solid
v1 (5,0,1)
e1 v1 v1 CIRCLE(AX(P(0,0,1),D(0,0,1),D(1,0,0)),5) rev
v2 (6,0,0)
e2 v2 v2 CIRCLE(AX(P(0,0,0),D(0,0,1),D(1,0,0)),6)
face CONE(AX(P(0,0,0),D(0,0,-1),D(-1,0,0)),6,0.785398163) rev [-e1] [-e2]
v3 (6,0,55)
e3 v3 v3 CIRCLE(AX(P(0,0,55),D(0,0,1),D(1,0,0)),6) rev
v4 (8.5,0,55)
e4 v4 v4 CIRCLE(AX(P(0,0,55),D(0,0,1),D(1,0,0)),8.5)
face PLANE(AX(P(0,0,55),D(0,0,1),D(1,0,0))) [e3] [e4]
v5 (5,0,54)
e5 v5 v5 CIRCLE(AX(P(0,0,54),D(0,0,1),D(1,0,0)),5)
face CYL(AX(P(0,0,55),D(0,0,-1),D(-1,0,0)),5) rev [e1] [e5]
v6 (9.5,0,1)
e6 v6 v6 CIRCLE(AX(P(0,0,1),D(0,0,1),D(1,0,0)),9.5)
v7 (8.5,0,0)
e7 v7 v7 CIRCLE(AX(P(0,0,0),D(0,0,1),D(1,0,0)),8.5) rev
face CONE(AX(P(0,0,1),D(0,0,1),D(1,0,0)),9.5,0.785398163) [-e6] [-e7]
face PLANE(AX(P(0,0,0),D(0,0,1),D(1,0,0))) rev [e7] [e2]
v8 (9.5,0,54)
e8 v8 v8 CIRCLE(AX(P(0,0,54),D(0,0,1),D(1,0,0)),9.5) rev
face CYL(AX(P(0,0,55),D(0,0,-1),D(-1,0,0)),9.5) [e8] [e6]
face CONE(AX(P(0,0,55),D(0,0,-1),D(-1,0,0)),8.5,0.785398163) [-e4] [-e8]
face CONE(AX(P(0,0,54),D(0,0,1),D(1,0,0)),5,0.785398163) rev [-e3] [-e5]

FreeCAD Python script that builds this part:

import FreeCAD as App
import Part
import Sketcher
from FreeCAD import Vector


def edges_at(feature, points):
    """Names of the edges that pass closest to the given points."""
    edges = feature.Shape.Edges
    near = lambda p: min(range(len(edges)), key=lambda i: edges[i].distToShape(Part.Vertex(*p))[0])
    return sorted({f"Edge{near(p) + 1}" for p in points})

doc = App.newDocument("Part")
body = doc.addObject("PartDesign::Body", "Body")

sketch1 = body.newObject("Sketcher::SketchObject", "Sketch")
sketch1.AttachmentSupport = (doc.getObject("XY_Plane"), [""])
sketch1.MapMode = "FlatFace"
sketch1.addGeometry(Part.Circle(Vector(0, 0, 0), Vector(0, 0, 1), 9.5), False)
sketch1.addGeometry(Part.Circle(Vector(0, 0, 0), Vector(0, 0, 1), 5), False)
sketch1.addConstraint(Sketcher.Constraint("Coincident", 0, 3, -1, 1))
sketch1.addConstraint(Sketcher.Constraint("Coincident", 1, 3, -1, 1))
sketch1.addConstraint(Sketcher.Constraint("Diameter", 0, 19.0))
sketch1.addConstraint(Sketcher.Constraint("Diameter", 1, 10.0))
pad1 = body.newObject("PartDesign::Pad", "Pad")
pad1.Profile = sketch1
pad1.Length = 55
doc.recompute()

chamfer = body.newObject("PartDesign::Chamfer", "Chamfer")
chamfer.Base = (pad1, edges_at(pad1, [
    (-9.5, 0, 0),
    (-9.5, 0, 55),
    (-5, 0, 0),
    (-5, 0, 55),
]))
chamfer.Size = 1

doc.recompute()
